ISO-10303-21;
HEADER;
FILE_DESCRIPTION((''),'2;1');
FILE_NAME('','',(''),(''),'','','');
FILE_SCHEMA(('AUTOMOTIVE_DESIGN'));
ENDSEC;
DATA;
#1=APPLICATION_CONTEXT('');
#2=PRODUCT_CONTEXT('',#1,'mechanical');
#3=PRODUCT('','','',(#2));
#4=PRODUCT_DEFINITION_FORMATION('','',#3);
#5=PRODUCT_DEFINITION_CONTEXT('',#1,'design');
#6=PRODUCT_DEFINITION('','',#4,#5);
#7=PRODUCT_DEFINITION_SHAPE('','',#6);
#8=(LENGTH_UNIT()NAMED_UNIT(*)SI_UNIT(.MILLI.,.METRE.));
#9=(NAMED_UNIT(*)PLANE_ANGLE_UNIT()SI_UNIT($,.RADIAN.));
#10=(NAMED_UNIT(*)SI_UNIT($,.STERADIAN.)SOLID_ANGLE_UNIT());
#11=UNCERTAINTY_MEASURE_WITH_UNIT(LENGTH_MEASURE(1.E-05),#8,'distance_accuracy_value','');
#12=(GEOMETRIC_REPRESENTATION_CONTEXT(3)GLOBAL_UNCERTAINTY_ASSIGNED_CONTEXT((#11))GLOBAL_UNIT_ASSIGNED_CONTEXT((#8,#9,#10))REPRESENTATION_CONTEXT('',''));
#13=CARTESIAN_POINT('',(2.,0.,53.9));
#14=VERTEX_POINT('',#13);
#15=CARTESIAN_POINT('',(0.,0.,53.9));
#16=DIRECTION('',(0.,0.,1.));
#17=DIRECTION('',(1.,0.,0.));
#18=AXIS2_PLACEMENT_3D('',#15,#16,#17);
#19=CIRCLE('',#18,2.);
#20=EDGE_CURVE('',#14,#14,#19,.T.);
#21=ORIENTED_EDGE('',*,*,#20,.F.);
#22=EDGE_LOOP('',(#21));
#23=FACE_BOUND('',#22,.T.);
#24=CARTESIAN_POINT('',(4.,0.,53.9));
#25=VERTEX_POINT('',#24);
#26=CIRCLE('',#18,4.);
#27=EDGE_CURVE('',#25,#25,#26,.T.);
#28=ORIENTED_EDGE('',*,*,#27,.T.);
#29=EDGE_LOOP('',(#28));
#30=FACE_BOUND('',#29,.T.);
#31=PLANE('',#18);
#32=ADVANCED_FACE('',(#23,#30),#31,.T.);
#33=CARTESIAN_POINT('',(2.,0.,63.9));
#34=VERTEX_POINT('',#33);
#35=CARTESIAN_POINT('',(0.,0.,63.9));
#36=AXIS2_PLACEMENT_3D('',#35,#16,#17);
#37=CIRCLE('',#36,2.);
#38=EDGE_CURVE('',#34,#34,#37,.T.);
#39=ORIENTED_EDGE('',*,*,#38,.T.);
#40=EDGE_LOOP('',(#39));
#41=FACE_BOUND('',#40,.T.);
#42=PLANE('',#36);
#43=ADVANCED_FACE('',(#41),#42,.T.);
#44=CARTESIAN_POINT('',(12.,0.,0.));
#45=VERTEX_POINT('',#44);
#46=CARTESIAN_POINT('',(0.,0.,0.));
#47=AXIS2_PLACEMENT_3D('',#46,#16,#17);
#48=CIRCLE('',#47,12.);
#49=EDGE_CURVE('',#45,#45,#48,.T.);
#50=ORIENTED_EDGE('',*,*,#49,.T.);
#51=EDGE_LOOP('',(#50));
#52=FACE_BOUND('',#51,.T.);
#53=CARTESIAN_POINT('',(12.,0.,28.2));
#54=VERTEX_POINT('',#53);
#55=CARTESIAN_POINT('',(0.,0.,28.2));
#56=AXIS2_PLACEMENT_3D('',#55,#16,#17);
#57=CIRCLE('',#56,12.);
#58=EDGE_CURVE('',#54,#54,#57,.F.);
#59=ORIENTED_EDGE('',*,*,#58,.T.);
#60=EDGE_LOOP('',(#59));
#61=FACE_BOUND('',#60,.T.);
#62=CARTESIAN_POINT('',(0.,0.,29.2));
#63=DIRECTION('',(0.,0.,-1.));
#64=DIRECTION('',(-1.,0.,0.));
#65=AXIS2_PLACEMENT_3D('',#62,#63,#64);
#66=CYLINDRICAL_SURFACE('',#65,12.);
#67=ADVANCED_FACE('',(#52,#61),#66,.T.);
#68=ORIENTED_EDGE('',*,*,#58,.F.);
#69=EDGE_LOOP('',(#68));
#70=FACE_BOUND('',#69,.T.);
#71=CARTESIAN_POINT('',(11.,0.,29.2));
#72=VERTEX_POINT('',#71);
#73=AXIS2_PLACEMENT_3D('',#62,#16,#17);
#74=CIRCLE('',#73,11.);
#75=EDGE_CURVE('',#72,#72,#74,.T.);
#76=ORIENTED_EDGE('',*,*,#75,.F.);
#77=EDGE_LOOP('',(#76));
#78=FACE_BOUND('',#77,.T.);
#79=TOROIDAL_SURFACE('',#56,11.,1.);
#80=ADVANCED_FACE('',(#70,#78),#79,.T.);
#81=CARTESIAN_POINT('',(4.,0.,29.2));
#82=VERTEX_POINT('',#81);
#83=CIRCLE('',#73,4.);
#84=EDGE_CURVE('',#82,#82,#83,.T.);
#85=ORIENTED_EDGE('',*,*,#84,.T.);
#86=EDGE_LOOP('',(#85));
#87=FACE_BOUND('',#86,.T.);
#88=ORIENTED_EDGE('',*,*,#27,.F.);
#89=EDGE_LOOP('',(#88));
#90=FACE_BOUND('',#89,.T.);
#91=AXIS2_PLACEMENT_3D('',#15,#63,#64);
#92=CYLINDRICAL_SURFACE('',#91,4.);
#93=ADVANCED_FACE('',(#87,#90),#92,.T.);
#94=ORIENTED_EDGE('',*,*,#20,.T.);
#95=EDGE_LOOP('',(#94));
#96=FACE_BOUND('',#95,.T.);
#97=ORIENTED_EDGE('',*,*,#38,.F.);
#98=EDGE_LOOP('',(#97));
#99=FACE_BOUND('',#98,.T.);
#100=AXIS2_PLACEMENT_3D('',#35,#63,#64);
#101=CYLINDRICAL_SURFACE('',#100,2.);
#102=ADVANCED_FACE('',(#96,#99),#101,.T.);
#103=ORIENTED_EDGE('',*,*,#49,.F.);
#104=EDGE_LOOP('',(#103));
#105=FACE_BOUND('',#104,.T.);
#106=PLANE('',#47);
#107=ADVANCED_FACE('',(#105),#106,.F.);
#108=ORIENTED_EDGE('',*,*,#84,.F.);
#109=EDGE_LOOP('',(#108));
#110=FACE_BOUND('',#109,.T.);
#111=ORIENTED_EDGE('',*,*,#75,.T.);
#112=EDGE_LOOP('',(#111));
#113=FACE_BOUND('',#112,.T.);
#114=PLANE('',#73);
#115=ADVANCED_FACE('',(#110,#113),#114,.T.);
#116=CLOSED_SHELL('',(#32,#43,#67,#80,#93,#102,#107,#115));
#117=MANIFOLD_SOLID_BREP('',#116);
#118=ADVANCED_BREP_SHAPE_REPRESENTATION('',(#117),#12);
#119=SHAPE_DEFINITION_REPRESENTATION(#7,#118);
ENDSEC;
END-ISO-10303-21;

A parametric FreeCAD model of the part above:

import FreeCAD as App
import Part
import Sketcher
from FreeCAD import Vector


def edges_at(feature, points):
    """Names of the edges that pass closest to the given points."""
    edges = feature.Shape.Edges
    near = lambda p: min(range(len(edges)), key=lambda i: edges[i].distToShape(Part.Vertex(*p))[0])
    return sorted({f"Edge{near(p) + 1}" for p in points})

doc = App.newDocument("Part")
params = doc.addObject("Spreadsheet::Sheet", "Params")
for row, (alias, value) in enumerate([
    ("sketch1_diameter", "24 mm"),
    ("pad1_length", "29.2 mm"),
    ("fillet_radius", "1 mm"),
    ("sketch2_diameter", "8 mm"),
    ("pad2_length", "24.7 mm"),
    ("sketch3_diameter", "4 mm"),
    ("pad3_length", "10 mm"),
], start=1):
    params.set(f"A{row}", alias)
    params.set(f"B{row}", "=" + value)
    params.setAlias(f"B{row}", alias)

body = doc.addObject("PartDesign::Body", "Body")

# Sketch on XY plane
sketch1 = doc.addObject("Sketcher::SketchObject", "Sketch")
body.addObject(sketch1)
sketch1.AttachmentSupport = (doc.XY_Plane, [""])
sketch1.MapMode = "FlatFace"
sketch1.addGeometry(Part.Circle(Vector(0, 0, 0), Vector(0, 0, 1), 12), False)
sketch1.addConstraint([
    Sketcher.Constraint("Coincident", 0, 3, -1, 1),
    Sketcher.Constraint("Diameter", 0, 24.0),
])
sketch1.setExpression("Constraints[1]", "Params.sketch1_diameter")
pad1 = doc.addObject("PartDesign::Pad", "Pad")
body.addObject(pad1)
pad1.Profile = sketch1
pad1.setExpression("Length", "Params.pad1_length")
doc.recompute()

fillet = doc.addObject("PartDesign::Fillet", "Fillet")
body.addObject(fillet)
fillet.Base = (pad1, edges_at(pad1, [(-12, 0, 29.2)]))
fillet.setExpression("Radius", "Params.fillet_radius")

# Sketch on XY plane
sketch2 = doc.addObject("Sketcher::SketchObject", "Sketch001")
body.addObject(sketch2)
sketch2.AttachmentSupport = (doc.XY_Plane, [""])
sketch2.MapMode = "FlatFace"
sketch2.AttachmentOffset = App.Placement(Vector(0, 0, 29.2), App.Rotation())
sketch2.addGeometry(Part.Circle(Vector(0, 0, 0), Vector(0, 0, 1), 4), False)
sketch2.addConstraint([
    Sketcher.Constraint("Coincident", 0, 3, -1, 1),
    Sketcher.Constraint("Diameter", 0, 8.0),
])
sketch2.setExpression("Constraints[1]", "Params.sketch2_diameter")
pad2 = doc.addObject("PartDesign::Pad", "Pad001")
body.addObject(pad2)
pad2.Profile = sketch2
pad2.setExpression("Length", "Params.pad2_length")

# Sketch on XY plane
sketch3 = doc.addObject("Sketcher::SketchObject", "Sketch002")
body.addObject(sketch3)
sketch3.AttachmentSupport = (doc.XY_Plane, [""])
sketch3.MapMode = "FlatFace"
sketch3.AttachmentOffset = App.Placement(Vector(0, 0, 53.9), App.Rotation())
sketch3.addGeometry(Part.Circle(Vector(0, 0, 0), Vector(0, 0, 1), 2), False)
sketch3.addConstraint([
    Sketcher.Constraint("Coincident", 0, 3, -1, 1),
    Sketcher.Constraint("Diameter", 0, 4.0),
])
sketch3.setExpression("Constraints[1]", "Params.sketch3_diameter")
pad3 = doc.addObject("PartDesign::Pad", "Pad002")
body.addObject(pad3)
pad3.Profile = sketch3
pad3.setExpression("Length", "Params.pad3_length")

doc.recompute()
